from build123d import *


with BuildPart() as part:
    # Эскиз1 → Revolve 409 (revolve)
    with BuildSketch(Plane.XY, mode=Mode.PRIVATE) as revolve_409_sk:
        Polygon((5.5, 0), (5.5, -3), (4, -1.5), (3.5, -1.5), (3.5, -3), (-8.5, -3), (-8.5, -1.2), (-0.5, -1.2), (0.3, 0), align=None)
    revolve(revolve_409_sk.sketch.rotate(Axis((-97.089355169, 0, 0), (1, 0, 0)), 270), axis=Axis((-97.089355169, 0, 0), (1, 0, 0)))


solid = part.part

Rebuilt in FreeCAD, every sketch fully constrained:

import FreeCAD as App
import Part
import Sketcher
from FreeCAD import Vector
Q = App.Units.Quantity

doc = App.newDocument("Part")
body = doc.addObject("PartDesign::Body", "Body")

sketch1 = body.newObject("Sketcher::SketchObject", "Sketch")
sketch1.AttachmentSupport = (doc.getObject("XY_Plane"), [""])
sketch1.MapMode = "FlatFace"
sketch1.addGeometry([
    Part.LineSegment(Vector(5.5, -3, 0), Vector(5.5, 0, 0)),
    Part.LineSegment(Vector(5.5, 0, 0), Vector(0.3, 0, 0)),
    Part.LineSegment(Vector(0.3, 0, 0), Vector(-0.5, -1.2, 0)),
    Part.LineSegment(Vector(-0.5, -1.2, 0), Vector(-8.5, -1.2, 0)),
    Part.LineSegment(Vector(-8.5, -1.2, 0), Vector(-8.5, -3, 0)),
    Part.LineSegment(Vector(-8.5, -3, 0), Vector(3.5, -3, 0)),
    Part.LineSegment(Vector(3.5, -3, 0), Vector(3.5, -1.5, 0)),
    Part.LineSegment(Vector(3.5, -1.5, 0), Vector(4, -1.5, 0)),
    Part.LineSegment(Vector(4, -1.5, 0), Vector(5.5, -3, 0)),
], False)
sketch1.addConstraint([
    Sketcher.Constraint("Coincident", 0, 2, 1, 1),
    Sketcher.Constraint("Coincident", 1, 2, 2, 1),
    Sketcher.Constraint("Coincident", 2, 2, 3, 1),
    Sketcher.Constraint("Coincident", 3, 2, 4, 1),
    Sketcher.Constraint("Coincident", 4, 2, 5, 1),
    Sketcher.Constraint("Coincident", 5, 2, 6, 1),
    Sketcher.Constraint("Coincident", 6, 2, 7, 1),
    Sketcher.Constraint("Coincident", 7, 2, 8, 1),
    Sketcher.Constraint("Coincident", 8, 2, 0, 1),
    Sketcher.Constraint("Vertical", 0),
    Sketcher.Constraint("Horizontal", 1),
    Sketcher.Constraint("Horizontal", 3),
    Sketcher.Constraint("Vertical", 4),
    Sketcher.Constraint("Horizontal", 5),
    Sketcher.Constraint("Vertical", 6),
    Sketcher.Constraint("Horizontal", 7),
    Sketcher.Constraint("PointOnObject", 0, 2, -1),
    Sketcher.Constraint("Horizontal", 5, 2, 8, 2),
    Sketcher.Constraint("DistanceX", 3, 2, 3, 1, Q("8 mm")),
    Sketcher.Constraint("DistanceX", 5, 1, 5, 2, Q("12 mm")),
    Sketcher.Constraint("DistanceY", 0, 1, 0, 2, Q("3 mm")),
    Sketcher.Constraint("Angle", 8, Q("-45 deg")),
    Sketcher.Constraint("DistanceX", 1, 2, 1, 1, Q("5.2 mm")),
    Sketcher.Constraint("DistanceX", 7, 1, 7, 2, Q("0.5 mm")),
    Sketcher.Constraint("DistanceY", 4, 2, 4, 1, Q("1.8 mm")),
    Sketcher.Constraint("DistanceY", 6, 1, 6, 2, Q("1.5 mm")),
    Sketcher.Constraint("DistanceX", -1, 1, 7, 2, Q("4 mm")),
])
revolution = body.newObject("PartDesign::Revolution", "Revolution")
revolution.Profile = sketch1
revolution.ReferenceAxis = (sketch1, ["H_Axis"])
revolution.Angle = 360

doc.recompute()
